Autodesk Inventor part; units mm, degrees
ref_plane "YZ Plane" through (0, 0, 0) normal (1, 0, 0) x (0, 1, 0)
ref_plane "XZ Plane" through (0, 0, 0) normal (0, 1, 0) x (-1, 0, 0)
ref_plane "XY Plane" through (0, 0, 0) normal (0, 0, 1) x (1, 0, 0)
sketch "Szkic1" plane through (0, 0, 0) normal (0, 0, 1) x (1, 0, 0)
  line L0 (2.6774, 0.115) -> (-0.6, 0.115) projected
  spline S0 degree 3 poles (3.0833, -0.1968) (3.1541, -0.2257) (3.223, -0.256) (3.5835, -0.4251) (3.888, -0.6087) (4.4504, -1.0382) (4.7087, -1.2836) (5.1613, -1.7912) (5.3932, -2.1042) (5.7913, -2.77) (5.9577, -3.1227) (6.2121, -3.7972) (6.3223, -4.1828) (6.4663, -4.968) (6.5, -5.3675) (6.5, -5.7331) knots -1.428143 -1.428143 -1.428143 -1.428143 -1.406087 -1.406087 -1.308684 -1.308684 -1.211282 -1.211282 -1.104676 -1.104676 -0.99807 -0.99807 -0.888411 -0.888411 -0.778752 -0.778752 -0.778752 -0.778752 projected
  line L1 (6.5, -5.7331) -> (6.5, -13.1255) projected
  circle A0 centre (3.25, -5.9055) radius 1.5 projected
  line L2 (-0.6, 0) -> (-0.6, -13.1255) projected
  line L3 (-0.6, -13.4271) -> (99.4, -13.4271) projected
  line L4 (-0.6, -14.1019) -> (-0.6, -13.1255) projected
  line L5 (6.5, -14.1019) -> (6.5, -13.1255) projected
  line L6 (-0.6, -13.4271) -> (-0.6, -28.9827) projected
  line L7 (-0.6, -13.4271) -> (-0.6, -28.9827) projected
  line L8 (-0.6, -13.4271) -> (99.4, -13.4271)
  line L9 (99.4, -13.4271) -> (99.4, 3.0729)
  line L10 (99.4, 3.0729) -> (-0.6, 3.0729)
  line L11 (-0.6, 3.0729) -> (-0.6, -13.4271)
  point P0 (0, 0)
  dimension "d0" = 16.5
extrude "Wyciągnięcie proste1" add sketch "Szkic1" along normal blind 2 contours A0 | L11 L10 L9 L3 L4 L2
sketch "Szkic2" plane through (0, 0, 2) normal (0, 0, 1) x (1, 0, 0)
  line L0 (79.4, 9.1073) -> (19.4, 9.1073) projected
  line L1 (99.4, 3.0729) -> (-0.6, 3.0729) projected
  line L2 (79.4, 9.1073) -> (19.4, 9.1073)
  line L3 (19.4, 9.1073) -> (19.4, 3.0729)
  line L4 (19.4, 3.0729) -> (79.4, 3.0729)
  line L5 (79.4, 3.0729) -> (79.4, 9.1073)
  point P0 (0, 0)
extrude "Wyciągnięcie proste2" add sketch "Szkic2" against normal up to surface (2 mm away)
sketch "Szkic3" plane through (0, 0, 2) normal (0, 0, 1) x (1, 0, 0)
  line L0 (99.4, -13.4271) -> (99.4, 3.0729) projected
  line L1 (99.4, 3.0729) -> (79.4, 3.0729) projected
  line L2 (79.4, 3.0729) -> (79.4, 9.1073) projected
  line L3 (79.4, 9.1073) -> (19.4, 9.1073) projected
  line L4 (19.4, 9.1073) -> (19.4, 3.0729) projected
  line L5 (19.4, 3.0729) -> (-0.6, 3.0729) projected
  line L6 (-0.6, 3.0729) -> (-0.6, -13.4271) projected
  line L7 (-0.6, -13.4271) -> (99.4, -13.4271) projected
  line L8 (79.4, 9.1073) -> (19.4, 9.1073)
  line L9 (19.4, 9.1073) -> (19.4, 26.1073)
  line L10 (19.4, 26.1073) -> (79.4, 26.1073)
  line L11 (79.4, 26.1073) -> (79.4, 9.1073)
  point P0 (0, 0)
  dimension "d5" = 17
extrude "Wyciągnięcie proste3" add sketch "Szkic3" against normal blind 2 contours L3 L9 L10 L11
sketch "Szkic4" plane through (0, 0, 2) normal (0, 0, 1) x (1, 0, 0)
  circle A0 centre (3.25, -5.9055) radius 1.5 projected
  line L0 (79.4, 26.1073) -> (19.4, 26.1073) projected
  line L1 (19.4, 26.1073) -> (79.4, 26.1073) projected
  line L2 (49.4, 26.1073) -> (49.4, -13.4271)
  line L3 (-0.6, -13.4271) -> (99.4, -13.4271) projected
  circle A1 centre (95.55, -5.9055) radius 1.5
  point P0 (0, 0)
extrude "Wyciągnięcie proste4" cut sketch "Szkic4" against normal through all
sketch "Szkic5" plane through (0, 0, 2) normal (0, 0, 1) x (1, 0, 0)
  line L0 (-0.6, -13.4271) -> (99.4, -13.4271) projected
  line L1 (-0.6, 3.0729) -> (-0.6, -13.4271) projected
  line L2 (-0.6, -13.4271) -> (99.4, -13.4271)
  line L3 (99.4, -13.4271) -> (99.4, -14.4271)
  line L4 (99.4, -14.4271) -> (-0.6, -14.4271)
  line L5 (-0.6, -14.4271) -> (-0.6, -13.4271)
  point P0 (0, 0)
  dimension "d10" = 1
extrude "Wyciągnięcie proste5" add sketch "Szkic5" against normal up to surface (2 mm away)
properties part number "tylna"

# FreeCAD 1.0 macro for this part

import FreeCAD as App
import Part
import Sketcher
from FreeCAD import Vector
Q = App.Units.Quantity

doc = App.newDocument("Part")
params = doc.addObject("Spreadsheet::Sheet", "Params")
for row, (alias, value) in enumerate([
    ("sketch1_height", "16.5 mm"),
    ("sketch1_width", "100 mm"),
    ("pad1_length", "2 mm"),
    ("sketch2_width", "60 mm"),
    ("pad2_length", "2 mm"),
    ("sketch3_height", "17 mm"),
    ("sketch3_width", "60 mm"),
    ("pad3_length", "2 mm"),
    ("sketch4_diameter", "3 mm"),
    ("sketch5_height", "1 mm"),
    ("sketch5_width", "100 mm"),
    ("pad4_length", "2 mm"),
], start=1):
    params.set(f"A{row}", alias)
    params.set(f"B{row}", "=" + value)
    params.setAlias(f"B{row}", alias)

body = doc.addObject("PartDesign::Body", "Body")

# Sketch on XY plane
sketch1 = doc.addObject("Sketcher::SketchObject", "Sketch")
body.addObject(sketch1)
sketch1.AttachmentSupport = (doc.XY_Plane, [""])
sketch1.MapMode = "FlatFace"
sketch1.addGeometry(Part.LineSegment(Vector(-1, -13, 0), Vector(99, -13, 0)), False)
sketch1.addGeometry(Part.LineSegment(Vector(99, -13, 0), Vector(99, 3, 0)), False)
sketch1.addGeometry(Part.LineSegment(Vector(99, 3, 0), Vector(-1, 3, 0)), False)
sketch1.addGeometry(Part.LineSegment(Vector(-1, 3, 0), Vector(-1, -13, 0)), False)
sketch1.addConstraint(Sketcher.Constraint("Coincident", 0, 2, 1, 1))
sketch1.addConstraint(Sketcher.Constraint("Coincident", 1, 2, 2, 1))
sketch1.addConstraint(Sketcher.Constraint("Coincident", 2, 2, 3, 1))
sketch1.addConstraint(Sketcher.Constraint("Coincident", 3, 2, 0, 1))
sketch1.addConstraint(Sketcher.Constraint("Horizontal", 0))
sketch1.addConstraint(Sketcher.Constraint("Vertical", 1))
sketch1.addConstraint(Sketcher.Constraint("Horizontal", 2))
sketch1.addConstraint(Sketcher.Constraint("Vertical", 3))
sketch1.addConstraint(Sketcher.Constraint("DistanceY", 1, 1, 1, 2, Q("16.5 mm")))
sketch1.addConstraint(Sketcher.Constraint("DistanceX", 0, 1, 0, 2, Q("100 mm")))
sketch1.addConstraint(Sketcher.Constraint("DistanceX", -1, 1, 0, 2, Q("99.4 mm")))
sketch1.addConstraint(Sketcher.Constraint("DistanceY", 0, 2, -1, 1, Q("13.427 mm")))
sketch1.setExpression("Constraints[8]", "Params.sketch1_height")
sketch1.setExpression("Constraints[9]", "Params.sketch1_width")
pad1 = doc.addObject("PartDesign::Pad", "Pad")
body.addObject(pad1)
pad1.Profile = sketch1
pad1.setExpression("Length", "Params.pad1_length")

# Sketch on XY plane
sketch2 = doc.addObject("Sketcher::SketchObject", "Sketch001")
body.addObject(sketch2)
sketch2.AttachmentSupport = (doc.XY_Plane, [""])
sketch2.MapMode = "FlatFace"
sketch2.AttachmentOffset = App.Placement(Vector(0, 0, 2), App.Rotation())
sketch2.addGeometry(Part.LineSegment(Vector(79, 3, 0), Vector(79, 9, 0)), False)
sketch2.addGeometry(Part.LineSegment(Vector(79, 9, 0), Vector(19, 9, 0)), False)
sketch2.addGeometry(Part.LineSegment(Vector(19, 9, 0), Vector(19, 3, 0)), False)
sketch2.addGeometry(Part.LineSegment(Vector(19, 3, 0), Vector(79, 3, 0)), False)
sketch2.addConstraint(Sketcher.Constraint("Coincident", 0, 2, 1, 1))
sketch2.addConstraint(Sketcher.Constraint("Coincident", 1, 2, 2, 1))
sketch2.addConstraint(Sketcher.Constraint("Coincident", 2, 2, 3, 1))
sketch2.addConstraint(Sketcher.Constraint("Coincident", 3, 2, 0, 1))
sketch2.addConstraint(Sketcher.Constraint("Vertical", 0))
sketch2.addConstraint(Sketcher.Constraint("Horizontal", 1))
sketch2.addConstraint(Sketcher.Constraint("Vertical", 2))
sketch2.addConstraint(Sketcher.Constraint("Horizontal", 3))
sketch2.addConstraint(Sketcher.Constraint("DistanceX", 1, 2, 1, 1, Q("60 mm")))
sketch2.addConstraint(Sketcher.Constraint("DistanceX", -1, 1, 0, 2, Q("79.4 mm")))
sketch2.addConstraint(Sketcher.Constraint("DistanceY", 0, 1, 0, 2, Q("6.0344 mm")))
sketch2.addConstraint(Sketcher.Constraint("DistanceY", -1, 1, 2, 2, Q("3.073 mm")))
sketch2.setExpression("Constraints[8]", "Params.sketch2_width")
pad2 = doc.addObject("PartDesign::Pad", "Pad001")
body.addObject(pad2)
pad2.Profile = sketch2
pad2.setExpression("Length", "Params.pad2_length")
pad2.Reversed = True

# Sketch on XY plane
sketch3 = doc.addObject("Sketcher::SketchObject", "Sketch002")
body.addObject(sketch3)
sketch3.AttachmentSupport = (doc.XY_Plane, [""])
sketch3.MapMode = "FlatFace"
sketch3.AttachmentOffset = App.Placement(Vector(0, 0, 2), App.Rotation())
sketch3.addGeometry(Part.LineSegment(Vector(19, 9, 0), Vector(79, 9, 0)), False)
sketch3.addGeometry(Part.LineSegment(Vector(79, 9, 0), Vector(79, 26, 0)), False)
sketch3.addGeometry(Part.LineSegment(Vector(79, 26, 0), Vector(19, 26, 0)), False)
sketch3.addGeometry(Part.LineSegment(Vector(19, 26, 0), Vector(19, 9, 0)), False)
sketch3.addConstraint(Sketcher.Constraint("Coincident", 0, 2, 1, 1))
sketch3.addConstraint(Sketcher.Constraint("Coincident", 1, 2, 2, 1))
sketch3.addConstraint(Sketcher.Constraint("Coincident", 2, 2, 3, 1))
sketch3.addConstraint(Sketcher.Constraint("Coincident", 3, 2, 0, 1))
sketch3.addConstraint(Sketcher.Constraint("Horizontal", 0))
sketch3.addConstraint(Sketcher.Constraint("Vertical", 1))
sketch3.addConstraint(Sketcher.Constraint("Horizontal", 2))
sketch3.addConstraint(Sketcher.Constraint("Vertical", 3))
sketch3.addConstraint(Sketcher.Constraint("DistanceY", 1, 1, 1, 2, Q("17 mm")))
sketch3.addConstraint(Sketcher.Constraint("DistanceX", 0, 1, 0, 2, Q("60 mm")))
sketch3.addConstraint(Sketcher.Constraint("DistanceX", -1, 1, 0, 2, Q("79.4 mm")))
sketch3.addConstraint(Sketcher.Constraint("DistanceY", -1, 1, 0, 2, Q("9.1073 mm")))
sketch3.setExpression("Constraints[8]", "Params.sketch3_height")
sketch3.setExpression("Constraints[9]", "Params.sketch3_width")
pad3 = doc.addObject("PartDesign::Pad", "Pad002")
body.addObject(pad3)
pad3.Profile = sketch3
pad3.setExpression("Length", "Params.pad3_length")
pad3.Reversed = True

# Sketch on XY plane
sketch4 = doc.addObject("Sketcher::SketchObject", "Sketch003")
body.addObject(sketch4)
sketch4.AttachmentSupport = (doc.XY_Plane, [""])
sketch4.MapMode = "FlatFace"
sketch4.AttachmentOffset = App.Placement(Vector(0, 0, 2), App.Rotation())
sketch4.addGeometry(Part.Circle(Vector(3.2, -5.9, 0), Vector(0, 0, 1), 1.5), False)
sketch4.addGeometry(Part.Circle(Vector(95.5, -5.9, 0), Vector(0, 0, 1), 1.5), False)
sketch4.addConstraint(Sketcher.Constraint("Equal", 0, 1))
sketch4.addConstraint(Sketcher.Constraint("Horizontal", 0, 3, 1, 3))
sketch4.addConstraint(Sketcher.Constraint("Diameter", 0, Q("3 mm")))
sketch4.addConstraint(Sketcher.Constraint("DistanceX", 0, 3, 1, 3, Q("92.3 mm")))
sketch4.addConstraint(Sketcher.Constraint("DistanceX", -1, 1, 0, 3, Q("3.25 mm")))
sketch4.addConstraint(Sketcher.Constraint("DistanceY", 0, 3, -1, 1, Q("5.9055 mm")))
sketch4.setExpression("Constraints[2]", "Params.sketch4_diameter")
pocket1 = doc.addObject("PartDesign::Pocket", "Pocket")
body.addObject(pocket1)
pocket1.Profile = sketch4
pocket1.Type = "ThroughAll"

# Sketch on XY plane
sketch5 = doc.addObject("Sketcher::SketchObject", "Sketch004")
body.addObject(sketch5)
sketch5.AttachmentSupport = (doc.XY_Plane, [""])
sketch5.MapMode = "FlatFace"
sketch5.AttachmentOffset = App.Placement(Vector(0, 0, 2), App.Rotation())
sketch5.addGeometry(Part.LineSegment(Vector(99.4, -13.4, 0), Vector(-0.6, -13.4, 0)), False)
sketch5.addGeometry(Part.LineSegment(Vector(-0.6, -13.4, 0), Vector(-0.6, -14.4, 0)), False)
sketch5.addGeometry(Part.LineSegment(Vector(-0.6, -14.4, 0), Vector(99.4, -14.4, 0)), False)
sketch5.addGeometry(Part.LineSegment(Vector(99.4, -14.4, 0), Vector(99.4, -13.4, 0)), False)
sketch5.addConstraint(Sketcher.Constraint("Coincident", 0, 2, 1, 1))
sketch5.addConstraint(Sketcher.Constraint("Coincident", 1, 2, 2, 1))
sketch5.addConstraint(Sketcher.Constraint("Coincident", 2, 2, 3, 1))
sketch5.addConstraint(Sketcher.Constraint("Coincident", 3, 2, 0, 1))
sketch5.addConstraint(Sketcher.Constraint("Horizontal", 0))
sketch5.addConstraint(Sketcher.Constraint("Vertical", 1))
sketch5.addConstraint(Sketcher.Constraint("Horizontal", 2))
sketch5.addConstraint(Sketcher.Constraint("Vertical", 3))
sketch5.addConstraint(Sketcher.Constraint("DistanceY", 1, 2, 1, 1, Q("1 mm")))
sketch5.addConstraint(Sketcher.Constraint("DistanceX", 0, 2, 0, 1, Q("100 mm")))
sketch5.addConstraint(Sketcher.Constraint("DistanceX", 0, 2, -1, 1, Q("0.6 mm")))
sketch5.addConstraint(Sketcher.Constraint("DistanceY", 0, 2, -1, 1, Q("13.427 mm")))
sketch5.setExpression("Constraints[8]", "Params.sketch5_height")
sketch5.setExpression("Constraints[9]", "Params.sketch5_width")
pad4 = doc.addObject("PartDesign::Pad", "Pad003")
body.addObject(pad4)
pad4.Profile = sketch5
pad4.setExpression("Length", "Params.pad4_length")
pad4.Reversed = True

doc.recompute()
